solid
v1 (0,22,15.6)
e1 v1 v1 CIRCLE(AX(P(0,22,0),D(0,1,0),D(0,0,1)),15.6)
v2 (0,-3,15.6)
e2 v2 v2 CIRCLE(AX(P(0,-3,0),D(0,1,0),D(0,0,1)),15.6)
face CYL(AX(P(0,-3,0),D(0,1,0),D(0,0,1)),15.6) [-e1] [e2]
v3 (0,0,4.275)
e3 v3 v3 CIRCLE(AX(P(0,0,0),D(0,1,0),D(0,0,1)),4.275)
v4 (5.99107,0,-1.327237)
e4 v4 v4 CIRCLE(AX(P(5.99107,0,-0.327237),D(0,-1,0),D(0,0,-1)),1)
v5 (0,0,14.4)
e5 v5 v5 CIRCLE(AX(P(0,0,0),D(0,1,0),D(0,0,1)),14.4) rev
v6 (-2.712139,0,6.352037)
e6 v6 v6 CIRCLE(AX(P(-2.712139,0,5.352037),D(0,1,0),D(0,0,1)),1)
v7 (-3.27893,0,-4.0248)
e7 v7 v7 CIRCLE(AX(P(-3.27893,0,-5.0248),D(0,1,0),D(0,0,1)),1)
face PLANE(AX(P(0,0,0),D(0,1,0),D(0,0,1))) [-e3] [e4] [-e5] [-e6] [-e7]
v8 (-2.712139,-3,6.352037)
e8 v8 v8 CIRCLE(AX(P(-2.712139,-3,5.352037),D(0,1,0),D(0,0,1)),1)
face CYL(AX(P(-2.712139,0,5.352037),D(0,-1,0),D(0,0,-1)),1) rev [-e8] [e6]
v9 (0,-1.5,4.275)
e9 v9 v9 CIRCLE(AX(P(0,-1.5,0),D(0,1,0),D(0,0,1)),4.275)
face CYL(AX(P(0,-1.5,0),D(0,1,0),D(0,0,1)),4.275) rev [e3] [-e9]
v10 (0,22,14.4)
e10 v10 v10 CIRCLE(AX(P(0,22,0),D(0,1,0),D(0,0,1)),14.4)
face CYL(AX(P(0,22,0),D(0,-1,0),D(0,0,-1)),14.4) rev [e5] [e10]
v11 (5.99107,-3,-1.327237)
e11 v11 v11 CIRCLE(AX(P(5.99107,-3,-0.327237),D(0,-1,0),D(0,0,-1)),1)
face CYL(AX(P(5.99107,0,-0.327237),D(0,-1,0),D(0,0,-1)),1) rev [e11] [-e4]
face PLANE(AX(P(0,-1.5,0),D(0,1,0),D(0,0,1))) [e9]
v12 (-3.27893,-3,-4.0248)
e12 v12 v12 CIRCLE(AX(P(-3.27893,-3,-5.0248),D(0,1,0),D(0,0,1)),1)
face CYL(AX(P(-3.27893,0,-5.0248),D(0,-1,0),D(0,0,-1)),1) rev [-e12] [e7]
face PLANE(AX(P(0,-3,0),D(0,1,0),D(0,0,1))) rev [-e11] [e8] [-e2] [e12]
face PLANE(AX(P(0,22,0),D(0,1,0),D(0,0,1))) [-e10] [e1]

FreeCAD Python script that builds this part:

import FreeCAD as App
import Part
import Sketcher

doc = App.newDocument("Part")
body = doc.addObject("PartDesign::Body", "Body")

sketch1 = body.newObject("Sketcher::SketchObject", "Sketch")
sketch1.AttachmentSupport = (doc.getObject("XZ_Plane"), [""])
sketch1.MapMode = "FlatFace"
sketch1.addGeometry(Part.Circle(App.Vector(0, 0, 0), App.Vector(0, 0, 1), 16), False)
sketch1.addConstraint(Sketcher.Constraint("Coincident", 0, 3, -1, 1))
sketch1.addConstraint(Sketcher.Constraint("Diameter", 0, 31.2))
pad1 = body.newObject("PartDesign::Pad", "Pad")
pad1.Profile = sketch1
pad1.Length = 3

sketch2 = body.newObject("Sketcher::SketchObject", "Sketch001")
sketch2.AttachmentSupport = (doc.getObject("XZ_Plane"), [""])
sketch2.MapMode = "FlatFace"
sketch2.addGeometry(Part.Circle(App.Vector(0, 0, 0), App.Vector(0, 0, 1), 4.3), False)
sketch2.addConstraint(Sketcher.Constraint("Coincident", 0, 3, -1, 1))
sketch2.addConstraint(Sketcher.Constraint("Diameter", 0, 8.55))
pocket1 = body.newObject("PartDesign::Pocket", "Pocket")
pocket1.Profile = sketch2
pocket1.Length = 1.5
pocket1.Reversed = True

sketch3 = body.newObject("Sketcher::SketchObject", "Sketch002")
sketch3.AttachmentSupport = (doc.getObject("XZ_Plane"), [""])
sketch3.MapMode = "FlatFace"
sketch3.AttachmentOffset = App.Placement(App.Vector(0, 0, -22), App.Rotation())
sketch3.addGeometry(Part.Circle(App.Vector(0, 0, 0), App.Vector(0, 0, 1), 16), False)
sketch3.addGeometry(Part.Circle(App.Vector(0, 0, 0), App.Vector(0, 0, 1), 14), False)
sketch3.addConstraint(Sketcher.Constraint("Coincident", 0, 3, -1, 1))
sketch3.addConstraint(Sketcher.Constraint("Coincident", 1, 3, -1, 1))
sketch3.addConstraint(Sketcher.Constraint("Diameter", 0, 31.2))
sketch3.addConstraint(Sketcher.Constraint("Diameter", 1, 28.8))
pad2 = body.newObject("PartDesign::Pad", "Pad001")
pad2.Profile = sketch3
pad2.Length = 22

sketch4 = body.newObject("Sketcher::SketchObject", "Sketch003")
sketch4.AttachmentSupport = (doc.getObject("XZ_Plane"), [""])
sketch4.MapMode = "FlatFace"
sketch4.AttachmentOffset = App.Placement(App.Vector(0, 0, 3), App.Rotation())
sketch4.addGeometry(Part.Circle(App.Vector(6, -0.3, 0), App.Vector(0, 0, 1), 1), False)
sketch4.addGeometry(Part.Circle(App.Vector(-3.3, -5, 0), App.Vector(0, 0, 1), 1), False)
sketch4.addGeometry(Part.Circle(App.Vector(-2.7, 5.4, 0), App.Vector(0, 0, 1), 1), False)
sketch4.addConstraint(Sketcher.Constraint("Equal", 0, 1))
sketch4.addConstraint(Sketcher.Constraint("Equal", 1, 2))
sketch4.addConstraint(Sketcher.Constraint("Diameter", 0, 2.0))
sketch4.addConstraint(Sketcher.Constraint("DistanceX", 1, 3, 0, 3, 9.27))
sketch4.addConstraint(Sketcher.Constraint("DistanceY", 1, 3, -1, 1, 5.0248))
sketch4.addConstraint(Sketcher.Constraint("DistanceX", -1, 1, 0, 3, 5.99107))
sketch4.addConstraint(Sketcher.Constraint("DistanceX", 2, 3, -1, 1, 2.712139))
sketch4.addConstraint(Sketcher.Constraint("DistanceY", 0, 3, -1, 1, 0.327237))
sketch4.addConstraint(Sketcher.Constraint("DistanceY", -1, 1, 2, 3, 5.352037))
pocket2 = body.newObject("PartDesign::Pocket", "Pocket001")
pocket2.Profile = sketch4
pocket2.Length = 3

doc.recompute()
